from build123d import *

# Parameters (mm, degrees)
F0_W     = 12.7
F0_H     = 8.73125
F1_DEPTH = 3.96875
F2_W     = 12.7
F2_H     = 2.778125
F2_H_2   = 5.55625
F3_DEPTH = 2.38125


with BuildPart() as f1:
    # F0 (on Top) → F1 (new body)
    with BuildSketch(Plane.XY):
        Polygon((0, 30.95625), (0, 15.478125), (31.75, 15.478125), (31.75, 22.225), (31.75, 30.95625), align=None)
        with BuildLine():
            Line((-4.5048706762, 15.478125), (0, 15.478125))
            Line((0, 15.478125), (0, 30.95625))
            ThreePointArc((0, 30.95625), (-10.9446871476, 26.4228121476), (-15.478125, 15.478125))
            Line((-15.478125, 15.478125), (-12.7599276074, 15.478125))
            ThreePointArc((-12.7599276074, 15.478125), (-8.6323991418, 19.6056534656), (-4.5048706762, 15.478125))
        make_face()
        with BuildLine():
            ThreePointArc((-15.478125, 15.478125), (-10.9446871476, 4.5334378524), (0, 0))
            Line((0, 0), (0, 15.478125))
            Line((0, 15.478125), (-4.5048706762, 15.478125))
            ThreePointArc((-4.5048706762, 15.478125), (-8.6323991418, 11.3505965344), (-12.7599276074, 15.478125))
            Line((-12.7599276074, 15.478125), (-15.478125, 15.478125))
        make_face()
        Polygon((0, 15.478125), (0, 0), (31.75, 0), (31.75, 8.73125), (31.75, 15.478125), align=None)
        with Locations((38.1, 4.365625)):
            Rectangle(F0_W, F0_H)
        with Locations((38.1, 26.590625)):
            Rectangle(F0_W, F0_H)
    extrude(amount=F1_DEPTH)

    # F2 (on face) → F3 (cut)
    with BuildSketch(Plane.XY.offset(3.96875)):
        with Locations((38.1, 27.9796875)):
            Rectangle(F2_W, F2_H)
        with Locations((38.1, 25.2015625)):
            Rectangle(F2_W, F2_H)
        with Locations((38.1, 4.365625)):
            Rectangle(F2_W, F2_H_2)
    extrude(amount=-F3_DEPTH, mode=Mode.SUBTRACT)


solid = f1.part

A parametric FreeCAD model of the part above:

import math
import FreeCAD as App
import Part
import Sketcher

V = App.Vector
Q = App.Units.Quantity


def add_polygon(sketch, points):
    """Adds a closed chain of lines whose ends are joined by coincident constraints."""
    first, n = sketch.GeometryCount, len(points)
    for a, b in zip(points, points[1:] + points[:1]):
        sketch.addGeometry(Part.LineSegment(App.Vector(*a, 0), App.Vector(*b, 0)), False)
    for i in range(n):
        sketch.addConstraint(Sketcher.Constraint("Coincident", first + i, 2, first + (i + 1) % n, 1))

doc = App.newDocument("Part")
body = doc.addObject("PartDesign::Body", "Body")

# Sketch on XY plane
sketch1 = body.newObject("Sketcher::SketchObject", "Sketch")
sketch1.AttachmentSupport = (doc.getObject("XY_Plane"), [""])
sketch1.MapMode = "FlatFace"
sketch1.addGeometry(Part.ArcOfCircle(Part.Circle(V(0, 15.5, 0), V(0, 0, 1), 15.5), math.radians(90), math.radians(180)), False)
sketch1.addGeometry(Part.ArcOfCircle(Part.Circle(V(0, 15.5, 0), V(0, 0, 1), 15.5), math.radians(180), math.radians(270)), False)
sketch1.addGeometry(Part.LineSegment(V(0, 0, 0), V(44.5, 0, 0)), False)
sketch1.addGeometry(Part.LineSegment(V(44.5, 0, 0), V(44.5, 8.7, 0)), False)
sketch1.addGeometry(Part.LineSegment(V(44.5, 8.7, 0), V(31.8, 8.7, 0)), False)
sketch1.addGeometry(Part.LineSegment(V(31.8, 8.7, 0), V(31.8, 22.2, 0)), False)
sketch1.addGeometry(Part.LineSegment(V(31.8, 22.2, 0), V(44.5, 22.2, 0)), False)
sketch1.addGeometry(Part.LineSegment(V(44.5, 22.2, 0), V(44.5, 31, 0)), False)
sketch1.addGeometry(Part.LineSegment(V(44.5, 31, 0), V(0, 31, 0)), False)
sketch1.addGeometry(Part.Circle(V(-8.6, 15.5, 0), V(0, 0, 1), 4.1), False)
sketch1.addConstraint(Sketcher.Constraint("Tangent", 0, 2, 1, 1))
sketch1.addConstraint(Sketcher.Constraint("Tangent", 1, 2, 2, 1))
sketch1.addConstraint(Sketcher.Constraint("Coincident", 2, 2, 3, 1))
sketch1.addConstraint(Sketcher.Constraint("Coincident", 3, 2, 4, 1))
sketch1.addConstraint(Sketcher.Constraint("Coincident", 4, 2, 5, 1))
sketch1.addConstraint(Sketcher.Constraint("Coincident", 5, 2, 6, 1))
sketch1.addConstraint(Sketcher.Constraint("Coincident", 6, 2, 7, 1))
sketch1.addConstraint(Sketcher.Constraint("Coincident", 7, 2, 8, 1))
sketch1.addConstraint(Sketcher.Constraint("Tangent", 8, 2, 0, 1))
sketch1.addConstraint(Sketcher.Constraint("Horizontal", 2))
sketch1.addConstraint(Sketcher.Constraint("Vertical", 3))
sketch1.addConstraint(Sketcher.Constraint("Horizontal", 4))
sketch1.addConstraint(Sketcher.Constraint("Vertical", 5))
sketch1.addConstraint(Sketcher.Constraint("Horizontal", 6))
sketch1.addConstraint(Sketcher.Constraint("Vertical", 7))
sketch1.addConstraint(Sketcher.Constraint("Horizontal", 8))
sketch1.addConstraint(Sketcher.Constraint("Coincident", 1, 2, -1, 1))
sketch1.addConstraint(Sketcher.Constraint("Equal", 0, 1))
sketch1.addConstraint(Sketcher.Constraint("Horizontal", 1, 3, 9, 3))
sketch1.addConstraint(Sketcher.Constraint("Horizontal", 9, 3, 0, 2))
sketch1.addConstraint(Sketcher.Constraint("Vertical", 3, 2, 6, 2))
sketch1.addConstraint(Sketcher.Constraint("Equal", 3, 7))
sketch1.addConstraint(Sketcher.Constraint("DistanceX", 4, 2, 4, 1, Q("0.5 in")))
sketch1.addConstraint(Sketcher.Constraint("Radius", 0, Q("0.609375 in")))
sketch1.addConstraint(Sketcher.Constraint("DistanceX", 2, 1, 2, 2, Q("1.75 in")))
sketch1.addConstraint(Sketcher.Constraint("DistanceY", 3, 1, 3, 2, Q("0.34375 in")))
sketch1.addConstraint(Sketcher.Constraint("Diameter", 9, Q("8.255057 mm")))
sketch1.addConstraint(Sketcher.Constraint("DistanceX", 9, 3, -1, 1, Q("8.632399 mm")))
pad1 = body.newObject("PartDesign::Pad", "Pad")
pad1.Profile = sketch1
pad1.Length = Q("0.15625 in")

# Sketch on XY plane
sketch2 = body.newObject("Sketcher::SketchObject", "Sketch001")
sketch2.AttachmentSupport = (doc.getObject("XY_Plane"), [""])
sketch2.MapMode = "FlatFace"
sketch2.AttachmentOffset = App.Placement(V(0, 0, 0.15625 * 25.4), App.Rotation())
add_polygon(sketch2, [(32, 29), (32, 24), (44, 24), (44, 29)])  # lines 0-3
add_polygon(sketch2, [(32, 7), (32, 2), (44, 2), (44, 7)])  # lines 4-7
sketch2.addConstraint(Sketcher.Constraint("Vertical", 0))
sketch2.addConstraint(Sketcher.Constraint("Horizontal", 1))
sketch2.addConstraint(Sketcher.Constraint("Vertical", 2))
sketch2.addConstraint(Sketcher.Constraint("Horizontal", 3))
sketch2.addConstraint(Sketcher.Constraint("Vertical", 4))
sketch2.addConstraint(Sketcher.Constraint("Horizontal", 5))
sketch2.addConstraint(Sketcher.Constraint("Vertical", 6))
sketch2.addConstraint(Sketcher.Constraint("Horizontal", 7))
sketch2.addConstraint(Sketcher.Constraint("Vertical", 3, 2, 4, 2))
sketch2.addConstraint(Sketcher.Constraint("Vertical", 2, 2, 5, 2))
sketch2.addConstraint(Sketcher.Constraint("Equal", 2, 4))
sketch2.addConstraint(Sketcher.Constraint("DistanceX", 1, 1, 1, 2, Q("0.5 in")))
sketch2.addConstraint(Sketcher.Constraint("DistanceY", 0, 2, 0, 1, Q("0.21875 in")))
sketch2.addConstraint(Sketcher.Constraint("DistanceX", -1, 1, 0, 2, Q("1.25 in")))
sketch2.addConstraint(Sketcher.Constraint("DistanceY", -1, 1, 0, 2, Q("0.9375 in")))
sketch2.addConstraint(Sketcher.Constraint("DistanceY", -1, 1, 4, 2, Q("0.0625 in")))
pocket1 = body.newObject("PartDesign::Pocket", "Pocket")
pocket1.Profile = sketch2
pocket1.Length = Q("0.09375 in")

doc.recompute()
